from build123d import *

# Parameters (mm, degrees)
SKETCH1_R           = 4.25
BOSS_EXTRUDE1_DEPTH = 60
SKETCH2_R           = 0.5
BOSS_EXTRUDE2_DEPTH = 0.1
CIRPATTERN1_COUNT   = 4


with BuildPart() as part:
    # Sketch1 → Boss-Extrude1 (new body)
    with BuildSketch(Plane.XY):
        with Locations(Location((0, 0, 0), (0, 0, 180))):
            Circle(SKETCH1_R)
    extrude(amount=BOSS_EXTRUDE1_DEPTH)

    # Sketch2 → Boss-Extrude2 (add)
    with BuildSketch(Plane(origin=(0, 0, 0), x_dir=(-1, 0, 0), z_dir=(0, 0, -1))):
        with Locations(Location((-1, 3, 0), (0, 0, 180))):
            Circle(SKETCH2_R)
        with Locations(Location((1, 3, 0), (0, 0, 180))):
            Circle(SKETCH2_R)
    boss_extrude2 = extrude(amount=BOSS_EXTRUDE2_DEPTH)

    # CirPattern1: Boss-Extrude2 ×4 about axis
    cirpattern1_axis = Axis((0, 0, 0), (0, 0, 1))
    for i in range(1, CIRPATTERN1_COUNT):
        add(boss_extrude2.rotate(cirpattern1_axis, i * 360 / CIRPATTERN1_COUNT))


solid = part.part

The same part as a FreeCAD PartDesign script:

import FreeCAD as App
import Part
import Sketcher
from FreeCAD import Vector

doc = App.newDocument("Part")
params = doc.addObject("Spreadsheet::Sheet", "Params")
for row, (alias, value) in enumerate([
    ("sketch1_diameter", "8.5 mm"),
    ("pad1_length", "60 mm"),
    ("sketch2_diameter", "1 mm"),
    ("pad2_length", "0.1 mm"),
], start=1):
    params.set(f"A{row}", alias)
    params.set(f"B{row}", "=" + value)
    params.setAlias(f"B{row}", alias)

body = doc.addObject("PartDesign::Body", "Body")

sketch1 = body.newObject("Sketcher::SketchObject", "Sketch")
sketch1.AttachmentSupport = (doc.getObject("XY_Plane"), [""])
sketch1.MapMode = "FlatFace"
sketch1.addGeometry(Part.Circle(Vector(0, 0, 0), Vector(0, 0, 1), 4.2), False)
sketch1.addConstraint([
    Sketcher.Constraint("Coincident", 0, 3, -1, 1),
    Sketcher.Constraint("Diameter", 0, 8.5),
])
sketch1.setExpression("Constraints[1]", "Params.sketch1_diameter")
pad1 = body.newObject("PartDesign::Pad", "Pad")
pad1.Profile = sketch1
pad1.setExpression("Length", "Params.pad1_length")

sketch2 = body.newObject("Sketcher::SketchObject", "Sketch001")
sketch2.AttachmentSupport = (doc.getObject("XY_Plane"), [""])
sketch2.MapMode = "FlatFace"
sketch2.addGeometry([
    Part.Circle(Vector(1, 3, 0), Vector(0, 0, 1), 0.5),
    Part.Circle(Vector(-1, 3, 0), Vector(0, 0, 1), 0.5),
], False)
sketch2.addConstraint([
    Sketcher.Constraint("Equal", 0, 1),
    Sketcher.Constraint("Symmetric", 0, 3, 1, 3, -2),
    Sketcher.Constraint("Diameter", 0, 1.0),
    Sketcher.Constraint("DistanceX", -1, 1, 0, 3, 1.0),
    Sketcher.Constraint("DistanceY", -1, 1, 0, 3, 3.0),
])
sketch2.setExpression("Constraints[2]", "Params.sketch2_diameter")
pad2 = body.newObject("PartDesign::Pad", "Pad001")
pad2.Profile = sketch2
pad2.setExpression("Length", "Params.pad2_length")
pad2.Reversed = True
doc.recompute()

polarpattern = body.newObject("PartDesign::PolarPattern", "PolarPattern")
polarpattern.Originals = [pad2]
polarpattern.Axis = (doc.getObject("Z_Axis"), [""])
polarpattern.Angle = 360
polarpattern.Occurrences = 4
body.Tip = polarpattern

doc.recompute()
